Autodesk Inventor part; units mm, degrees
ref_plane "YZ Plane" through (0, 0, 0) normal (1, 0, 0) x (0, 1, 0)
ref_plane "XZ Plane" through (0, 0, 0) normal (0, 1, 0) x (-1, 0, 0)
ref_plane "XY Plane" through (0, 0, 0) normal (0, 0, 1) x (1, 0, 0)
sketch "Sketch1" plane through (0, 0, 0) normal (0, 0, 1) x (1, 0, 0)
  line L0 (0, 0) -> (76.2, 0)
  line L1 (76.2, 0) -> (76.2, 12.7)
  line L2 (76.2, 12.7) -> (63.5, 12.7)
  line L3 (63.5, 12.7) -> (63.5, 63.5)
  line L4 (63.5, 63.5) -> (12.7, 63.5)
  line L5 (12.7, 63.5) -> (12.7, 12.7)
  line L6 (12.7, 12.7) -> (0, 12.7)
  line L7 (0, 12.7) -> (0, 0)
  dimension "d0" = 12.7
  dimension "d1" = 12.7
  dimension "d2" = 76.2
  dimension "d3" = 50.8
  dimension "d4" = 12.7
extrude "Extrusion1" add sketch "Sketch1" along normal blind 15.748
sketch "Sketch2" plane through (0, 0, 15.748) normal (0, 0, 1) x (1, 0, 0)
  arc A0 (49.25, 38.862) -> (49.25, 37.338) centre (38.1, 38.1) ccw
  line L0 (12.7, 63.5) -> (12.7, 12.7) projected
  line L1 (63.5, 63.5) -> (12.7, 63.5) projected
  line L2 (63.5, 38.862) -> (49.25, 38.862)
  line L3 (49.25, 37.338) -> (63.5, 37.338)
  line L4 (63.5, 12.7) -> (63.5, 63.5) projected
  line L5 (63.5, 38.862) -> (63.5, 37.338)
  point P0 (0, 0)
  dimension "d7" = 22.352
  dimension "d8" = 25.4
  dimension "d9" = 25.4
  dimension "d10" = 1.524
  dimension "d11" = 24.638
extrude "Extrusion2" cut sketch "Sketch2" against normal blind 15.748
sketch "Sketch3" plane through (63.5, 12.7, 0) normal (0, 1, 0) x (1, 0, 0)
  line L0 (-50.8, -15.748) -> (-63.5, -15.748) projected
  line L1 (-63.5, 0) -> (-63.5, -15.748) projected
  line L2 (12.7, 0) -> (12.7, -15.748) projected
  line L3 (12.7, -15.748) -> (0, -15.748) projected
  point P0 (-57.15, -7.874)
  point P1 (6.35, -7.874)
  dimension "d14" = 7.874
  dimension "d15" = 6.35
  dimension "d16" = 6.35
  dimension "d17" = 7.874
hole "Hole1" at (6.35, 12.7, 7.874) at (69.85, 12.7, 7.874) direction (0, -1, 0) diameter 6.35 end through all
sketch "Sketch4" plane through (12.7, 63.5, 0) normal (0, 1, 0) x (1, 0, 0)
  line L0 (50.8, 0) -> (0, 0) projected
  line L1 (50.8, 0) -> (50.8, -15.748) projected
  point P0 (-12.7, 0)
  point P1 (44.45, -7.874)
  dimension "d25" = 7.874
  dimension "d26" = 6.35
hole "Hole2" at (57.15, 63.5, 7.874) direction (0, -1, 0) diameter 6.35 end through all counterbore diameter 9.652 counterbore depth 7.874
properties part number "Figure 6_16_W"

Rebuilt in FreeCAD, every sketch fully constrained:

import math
import FreeCAD as App
import Part
import Sketcher
from FreeCAD import Vector
Q = App.Units.Quantity

doc = App.newDocument("Part")
body = doc.addObject("PartDesign::Body", "Body")

# Sketch on XY plane
sketch1 = body.newObject("Sketcher::SketchObject", "Sketch")
sketch1.AttachmentSupport = (doc.getObject("XY_Plane"), [""])
sketch1.MapMode = "FlatFace"
sketch1.addGeometry([
    Part.LineSegment(Vector(0, 13, 0), Vector(0, 0, 0)),  # 0
    Part.LineSegment(Vector(0, 0, 0), Vector(76, 0, 0)),  # 1
    Part.LineSegment(Vector(76, 0, 0), Vector(76, 13, 0)),  # 2
    Part.LineSegment(Vector(76, 13, 0), Vector(64, 13, 0)),  # 3
    Part.LineSegment(Vector(64, 13, 0), Vector(64, 64, 0)),  # 4
    Part.LineSegment(Vector(64, 64, 0), Vector(13, 64, 0)),  # 5
    Part.LineSegment(Vector(13, 64, 0), Vector(13, 13, 0)),  # 6
    Part.LineSegment(Vector(13, 13, 0), Vector(0, 13, 0)),  # 7
], False)
sketch1.addConstraint([
    Sketcher.Constraint("Coincident", 0, 2, 1, 1),
    Sketcher.Constraint("Coincident", 1, 2, 2, 1),
    Sketcher.Constraint("Coincident", 2, 2, 3, 1),
    Sketcher.Constraint("Coincident", 3, 2, 4, 1),
    Sketcher.Constraint("Coincident", 4, 2, 5, 1),
    Sketcher.Constraint("Coincident", 5, 2, 6, 1),
    Sketcher.Constraint("Coincident", 6, 2, 7, 1),
    Sketcher.Constraint("Coincident", 7, 2, 0, 1),
    Sketcher.Constraint("Vertical", 0),
    Sketcher.Constraint("Horizontal", 1),
    Sketcher.Constraint("Vertical", 2),
    Sketcher.Constraint("Horizontal", 3),
    Sketcher.Constraint("Vertical", 4),
    Sketcher.Constraint("Horizontal", 5),
    Sketcher.Constraint("Vertical", 6),
    Sketcher.Constraint("Horizontal", 7),
    Sketcher.Constraint("Coincident", 0, 2, -1, 1),
    Sketcher.Constraint("Horizontal", 3, 2, 6, 2),
    Sketcher.Constraint("Equal", 3, 7),
    Sketcher.Constraint("Equal", 7, 0),
    Sketcher.Constraint("Equal", 5, 4),
    Sketcher.Constraint("DistanceX", 1, 1, 1, 2, Q("3 in")),
    Sketcher.Constraint("DistanceX", 5, 2, 5, 1, Q("2 in")),
])
pad1 = body.newObject("PartDesign::Pad", "Pad")
pad1.Profile = sketch1
pad1.Length = Q("0.62 in")

# Sketch on XY plane
sketch2 = body.newObject("Sketcher::SketchObject", "Sketch001")
sketch2.AttachmentSupport = (doc.getObject("XY_Plane"), [""])
sketch2.MapMode = "FlatFace"
sketch2.AttachmentOffset = App.Placement(Vector(0, 0, 0.62 * 25.4), App.Rotation())
sketch2.addGeometry([
    Part.LineSegment(Vector(63.5, 38.9, 0), Vector(49.2, 38.9, 0)),
    Part.ArcOfCircle(Part.Circle(Vector(38.1, 38.1, 0), Vector(0, 0, 1), 11.2), math.radians(4), math.radians(356)),
    Part.LineSegment(Vector(49.2, 37.3, 0), Vector(63.5, 37.3, 0)),
    Part.LineSegment(Vector(63.5, 37.3, 0), Vector(63.5, 38.9, 0)),
], False)
sketch2.addConstraint([
    Sketcher.Constraint("Coincident", 0, 2, 1, 1),
    Sketcher.Constraint("Coincident", 1, 2, 2, 1),
    Sketcher.Constraint("Coincident", 2, 2, 3, 1),
    Sketcher.Constraint("Coincident", 3, 2, 0, 1),
    Sketcher.Constraint("Horizontal", 0),
    Sketcher.Constraint("Horizontal", 2),
    Sketcher.Constraint("Vertical", 3),
    Sketcher.Constraint("Vertical", 0, 2, 1, 2),
    Sketcher.Constraint("Radius", 1, Q("0.44 in")),
    Sketcher.Constraint("DistanceX", 1, 3, 2, 2, Q("1 in")),
    Sketcher.Constraint("DistanceY", 3, 1, 3, 2, Q("0.06 in")),
    Sketcher.Constraint("DistanceX", -1, 1, 1, 3, Q("1.5 in")),
    Sketcher.Constraint("DistanceY", -1, 1, 1, 3, Q("1.5 in")),
])
pocket1 = body.newObject("PartDesign::Pocket", "Pocket")
pocket1.Profile = sketch2
pocket1.Length = Q("0.62 in")

# Sketch on XZ plane
sketch3 = body.newObject("Sketcher::SketchObject", "Sketch002")
sketch3.AttachmentSupport = (doc.getObject("XZ_Plane"), [""])
sketch3.MapMode = "FlatFace"
sketch3.AttachmentOffset = App.Placement(Vector(0, 0, -0.5 * 25.4), App.Rotation())
sketch3.addGeometry([
    Part.Circle(Vector(6.3, 7.9, 0), Vector(0, 0, 1), 3.2),
    Part.Circle(Vector(69.8, 7.9, 0), Vector(0, 0, 1), 3.2),
], False)
sketch3.addConstraint([
    Sketcher.Constraint("Equal", 0, 1),
    Sketcher.Constraint("Horizontal", 0, 3, 1, 3),
    Sketcher.Constraint("Diameter", 0, Q("0.25 in")),
    Sketcher.Constraint("DistanceX", 0, 3, 1, 3, Q("2.5 in")),
    Sketcher.Constraint("DistanceX", -1, 1, 0, 3, Q("0.25 in")),
    Sketcher.Constraint("DistanceY", -1, 1, 0, 3, Q("0.31 in")),
])
doc.recompute()
hole = body.newObject("PartDesign::Hole", "Hole")
hole.Profile = sketch3
hole.ThreadType = "None"
hole.Diameter = Q("0.25 in")
hole.DepthType = "ThroughAll"
hole.Reversed = True

# Sketch on XZ plane
sketch4 = body.newObject("Sketcher::SketchObject", "Sketch003")
sketch4.AttachmentSupport = (doc.getObject("XZ_Plane"), [""])
sketch4.MapMode = "FlatFace"
sketch4.AttachmentOffset = App.Placement(Vector(0, 0, -2.5 * 25.4), App.Rotation())
sketch4.addGeometry(Part.Circle(Vector(57.1, 7.9, 0), Vector(0, 0, 1), 3.2), False)
sketch4.addConstraint([
    Sketcher.Constraint("Diameter", 0, Q("0.25 in")),
    Sketcher.Constraint("DistanceX", -1, 1, 0, 3, Q("2.25 in")),
    Sketcher.Constraint("DistanceY", -1, 1, 0, 3, Q("0.31 in")),
])
doc.recompute()
hole2 = body.newObject("PartDesign::Hole", "Hole001")
hole2.Profile = sketch4
hole2.ThreadType = "None"
hole2.Diameter = Q("0.25 in")
hole2.DepthType = "ThroughAll"
hole2.HoleCutType = "Counterbore"
hole2.HoleCutDiameter = Q("0.38 in")
hole2.HoleCutDepth = Q("0.31 in")
hole2.Reversed = True

doc.recompute()
